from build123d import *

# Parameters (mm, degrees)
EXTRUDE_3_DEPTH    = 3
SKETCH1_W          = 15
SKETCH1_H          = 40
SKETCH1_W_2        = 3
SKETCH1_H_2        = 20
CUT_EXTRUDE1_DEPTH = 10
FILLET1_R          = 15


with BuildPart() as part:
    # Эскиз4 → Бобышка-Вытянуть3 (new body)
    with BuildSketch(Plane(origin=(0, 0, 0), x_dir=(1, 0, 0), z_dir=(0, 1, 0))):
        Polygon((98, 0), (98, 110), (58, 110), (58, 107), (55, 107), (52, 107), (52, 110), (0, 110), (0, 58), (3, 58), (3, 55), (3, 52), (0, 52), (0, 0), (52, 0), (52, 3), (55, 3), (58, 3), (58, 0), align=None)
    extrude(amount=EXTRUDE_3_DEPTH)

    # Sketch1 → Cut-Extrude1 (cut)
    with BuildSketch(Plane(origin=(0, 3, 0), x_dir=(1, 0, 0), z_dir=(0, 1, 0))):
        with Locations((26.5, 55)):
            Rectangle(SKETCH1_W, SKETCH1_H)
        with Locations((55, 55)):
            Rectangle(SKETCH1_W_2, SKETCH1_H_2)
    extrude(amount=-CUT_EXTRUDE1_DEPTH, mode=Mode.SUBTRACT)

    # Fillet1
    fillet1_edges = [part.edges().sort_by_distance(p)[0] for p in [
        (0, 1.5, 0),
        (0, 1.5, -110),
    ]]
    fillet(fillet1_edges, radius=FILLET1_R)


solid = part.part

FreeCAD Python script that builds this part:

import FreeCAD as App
import Part
import Sketcher
from FreeCAD import Vector
Q = App.Units.Quantity


def edges_at(feature, points):
    """Names of the edges that pass closest to the given points."""
    edges = feature.Shape.Edges
    near = lambda p: min(range(len(edges)), key=lambda i: edges[i].distToShape(Part.Vertex(*p))[0])
    return sorted({f"Edge{near(p) + 1}" for p in points})


def add_polygon(sketch, points):
    """Adds a closed chain of lines whose ends are joined by coincident constraints."""
    first, n = sketch.GeometryCount, len(points)
    for a, b in zip(points, points[1:] + points[:1]):
        sketch.addGeometry(Part.LineSegment(App.Vector(*a, 0), App.Vector(*b, 0)), False)
    for i in range(n):
        sketch.addConstraint(Sketcher.Constraint("Coincident", first + i, 2, first + (i + 1) % n, 1))

doc = App.newDocument("Part")
body = doc.addObject("PartDesign::Body", "Body")

sketch1 = body.newObject("Sketcher::SketchObject", "Sketch")
sketch1.AttachmentSupport = (doc.getObject("XZ_Plane"), [""])
sketch1.MapMode = "FlatFace"
add_polygon(sketch1, [(98, 0), (98, -110), (58, -110), (58, -107), (52, -107), (52, -110), (0, -110), (0, -58), (3, -58), (3, -52), (0, -52), (0, 0), (52, 0), (52, -3), (58, -3), (58, 0)])
sketch1.addConstraint(Sketcher.Constraint("Vertical", 0))
sketch1.addConstraint(Sketcher.Constraint("Horizontal", 1))
sketch1.addConstraint(Sketcher.Constraint("Vertical", 2))
sketch1.addConstraint(Sketcher.Constraint("Horizontal", 3))
sketch1.addConstraint(Sketcher.Constraint("Vertical", 4))
sketch1.addConstraint(Sketcher.Constraint("Horizontal", 5))
sketch1.addConstraint(Sketcher.Constraint("Vertical", 6))
sketch1.addConstraint(Sketcher.Constraint("Horizontal", 7))
sketch1.addConstraint(Sketcher.Constraint("Vertical", 8))
sketch1.addConstraint(Sketcher.Constraint("Horizontal", 9))
sketch1.addConstraint(Sketcher.Constraint("Vertical", 10))
sketch1.addConstraint(Sketcher.Constraint("Horizontal", 11))
sketch1.addConstraint(Sketcher.Constraint("Vertical", 12))
sketch1.addConstraint(Sketcher.Constraint("Horizontal", 13))
sketch1.addConstraint(Sketcher.Constraint("Vertical", 14))
sketch1.addConstraint(Sketcher.Constraint("Horizontal", 15))
sketch1.addConstraint(Sketcher.Constraint("Coincident", 10, 2, -1, 1))
sketch1.addConstraint(Sketcher.Constraint("PointOnObject", 5, 2, -2))
sketch1.addConstraint(Sketcher.Constraint("PointOnObject", 14, 2, -1))
sketch1.addConstraint(Sketcher.Constraint("Horizontal", 1, 2, 4, 2))
sketch1.addConstraint(Sketcher.Constraint("Vertical", 4, 2, 11, 2))
sketch1.addConstraint(Sketcher.Constraint("Vertical", 2, 2, 13, 2))
sketch1.addConstraint(Sketcher.Constraint("Equal", 9, 2))
sketch1.addConstraint(Sketcher.Constraint("Equal", 11, 6))
sketch1.addConstraint(Sketcher.Constraint("Equal", 13, 8))
sketch1.addConstraint(Sketcher.Constraint("Equal", 6, 10))
sketch1.addConstraint(Sketcher.Constraint("Equal", 4, 12))
sketch1.addConstraint(Sketcher.Constraint("DistanceX", 1, 2, 1, 1, Q("40 mm")))
sketch1.addConstraint(Sketcher.Constraint("DistanceX", 3, 2, 3, 1, Q("6 mm")))
sketch1.addConstraint(Sketcher.Constraint("DistanceX", 5, 2, 5, 1, Q("52 mm")))
sketch1.addConstraint(Sketcher.Constraint("DistanceX", 7, 1, 7, 2, Q("3 mm")))
pad1 = body.newObject("PartDesign::Pad", "Pad")
pad1.Profile = sketch1
pad1.Length = 3
pad1.Reversed = True

sketch2 = body.newObject("Sketcher::SketchObject", "Sketch001")
sketch2.AttachmentSupport = (doc.getObject("XZ_Plane"), [""])
sketch2.MapMode = "FlatFace"
sketch2.AttachmentOffset = App.Placement(Vector(0, 0, -3), App.Rotation())
add_polygon(sketch2, [(19, -75), (19, -35), (34, -35), (34, -75)])
add_polygon(sketch2, [(53.5, -65), (53.5, -45), (56.5, -45), (56.5, -65)])
sketch2.addConstraint(Sketcher.Constraint("Vertical", 0))
sketch2.addConstraint(Sketcher.Constraint("Horizontal", 1))
sketch2.addConstraint(Sketcher.Constraint("Vertical", 2))
sketch2.addConstraint(Sketcher.Constraint("Horizontal", 3))
sketch2.addConstraint(Sketcher.Constraint("Vertical", 4))
sketch2.addConstraint(Sketcher.Constraint("Horizontal", 5))
sketch2.addConstraint(Sketcher.Constraint("Vertical", 6))
sketch2.addConstraint(Sketcher.Constraint("Horizontal", 7))
sketch2.addConstraint(Sketcher.Constraint("DistanceX", 1, 1, 1, 2, Q("15 mm")))
sketch2.addConstraint(Sketcher.Constraint("DistanceX", 5, 1, 5, 2, Q("3 mm")))
sketch2.addConstraint(Sketcher.Constraint("DistanceY", 0, 1, 0, 2, Q("40 mm")))
sketch2.addConstraint(Sketcher.Constraint("DistanceY", 4, 1, 4, 2, Q("20 mm")))
sketch2.addConstraint(Sketcher.Constraint("DistanceX", -1, 1, 0, 2, Q("19 mm")))
sketch2.addConstraint(Sketcher.Constraint("DistanceY", 0, 2, -1, 1, Q("35 mm")))
sketch2.addConstraint(Sketcher.Constraint("DistanceY", 4, 2, -1, 1, Q("45 mm")))
sketch2.addConstraint(Sketcher.Constraint("DistanceX", -1, 1, 4, 2, Q("53.5 mm")))
pocket1 = body.newObject("PartDesign::Pocket", "Pocket")
pocket1.Profile = sketch2
pocket1.Length = 10
pocket1.Reversed = True
doc.recompute()

fillet = body.newObject("PartDesign::Fillet", "Fillet")
fillet.Base = (pocket1, edges_at(pocket1, [(0, 1.5, 0), (0, 1.5, -110)]))
fillet.Radius = 15

doc.recompute()
